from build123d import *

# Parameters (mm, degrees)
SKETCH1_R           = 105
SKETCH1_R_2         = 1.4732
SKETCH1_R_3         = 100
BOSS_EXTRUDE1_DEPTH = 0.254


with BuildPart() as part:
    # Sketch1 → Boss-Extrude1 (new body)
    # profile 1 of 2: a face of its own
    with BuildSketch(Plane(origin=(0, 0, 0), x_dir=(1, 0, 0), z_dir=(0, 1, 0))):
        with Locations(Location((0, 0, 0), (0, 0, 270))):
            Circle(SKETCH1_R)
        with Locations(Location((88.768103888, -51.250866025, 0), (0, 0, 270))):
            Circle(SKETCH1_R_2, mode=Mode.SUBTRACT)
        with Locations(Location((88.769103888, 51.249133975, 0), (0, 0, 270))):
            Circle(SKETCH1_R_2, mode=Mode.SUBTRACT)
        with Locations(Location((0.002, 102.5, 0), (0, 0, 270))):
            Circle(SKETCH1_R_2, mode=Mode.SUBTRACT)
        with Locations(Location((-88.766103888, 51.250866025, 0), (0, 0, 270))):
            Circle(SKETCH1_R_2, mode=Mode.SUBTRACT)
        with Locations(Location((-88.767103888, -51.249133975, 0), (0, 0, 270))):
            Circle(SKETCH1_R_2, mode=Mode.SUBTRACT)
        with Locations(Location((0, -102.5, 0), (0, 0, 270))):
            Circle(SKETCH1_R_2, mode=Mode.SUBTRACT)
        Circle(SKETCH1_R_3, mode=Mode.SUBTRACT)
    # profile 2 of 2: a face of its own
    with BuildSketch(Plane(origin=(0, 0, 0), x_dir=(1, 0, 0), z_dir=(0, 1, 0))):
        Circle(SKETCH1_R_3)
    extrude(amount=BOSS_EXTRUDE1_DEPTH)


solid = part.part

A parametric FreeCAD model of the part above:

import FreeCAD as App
import Part
import Sketcher
Q = App.Units.Quantity

doc = App.newDocument("Part")
body = doc.addObject("PartDesign::Body", "Body")

# Sketch on XZ plane
sketch1 = body.newObject("Sketcher::SketchObject", "Sketch")
sketch1.AttachmentSupport = (doc.getObject("XZ_Plane"), [""])
sketch1.MapMode = "FlatFace"
sketch1.addGeometry([
    Part.Circle(App.Vector(0, 0, 0), App.Vector(0, 0, 1), 105),  # 0
    Part.Circle(App.Vector(-88.766104, -51.250866, 0), App.Vector(0, 0, 1), 1.4732),  # 1
    Part.Circle(App.Vector(-88.767104, 51.249134, 0), App.Vector(0, 0, 1), 1.4732),  # 2
    Part.Circle(App.Vector(0.002, -102.5, 0), App.Vector(0, 0, 1), 1.4732),  # 3
    Part.Circle(App.Vector(88.769104, -51.249134, 0), App.Vector(0, 0, 1), 1.4732),  # 4
    Part.Circle(App.Vector(0, 102.5, 0), App.Vector(0, 0, 1), 1.4732),  # 5
    Part.Circle(App.Vector(88.768104, 51.250866, 0), App.Vector(0, 0, 1), 1.4732),  # 6
], False)
sketch1.addConstraint([
    Sketcher.Constraint("Coincident", 0, 3, -1, 1),
    Sketcher.Constraint("Equal", 1, 2),
    Sketcher.Constraint("Equal", 2, 3),
    Sketcher.Constraint("Equal", 3, 4),
    Sketcher.Constraint("Equal", 4, 5),
    Sketcher.Constraint("Equal", 5, 6),
    Sketcher.Constraint("PointOnObject", 5, 3, -2),
    Sketcher.Constraint("Diameter", 1, Q("0.116 in")),
    Sketcher.Constraint("Diameter", 0, Q("210 mm")),
    Sketcher.Constraint("DistanceX", -1, 1, 3, 3, Q("0.002 mm")),
    Sketcher.Constraint("DistanceY", 3, 3, -1, 1, Q("102.5 mm")),
    Sketcher.Constraint("DistanceY", -1, 1, 5, 3, Q("102.5 mm")),
    Sketcher.Constraint("DistanceX", 2, 3, 1, 3, Q("0.001 mm")),
    Sketcher.Constraint("DistanceY", 1, 3, 2, 3, Q("102.5 mm")),
    Sketcher.Constraint("DistanceX", 6, 3, 4, 3, Q("0.001 mm")),
    Sketcher.Constraint("DistanceY", 4, 3, 6, 3, Q("102.5 mm")),
    Sketcher.Constraint("DistanceX", 1, 3, -1, 1, Q("88.766104 mm")),
    Sketcher.Constraint("DistanceY", 1, 3, -1, 1, Q("51.250866 mm")),
    Sketcher.Constraint("DistanceX", -1, 1, 4, 3, Q("88.769104 mm")),
    Sketcher.Constraint("DistanceY", 4, 3, -1, 1, Q("51.249134 mm")),
])
pad1 = body.newObject("PartDesign::Pad", "Pad")
pad1.Profile = sketch1
pad1.Length = Q("0.01 in")
pad1.Reversed = True

doc.recompute()
